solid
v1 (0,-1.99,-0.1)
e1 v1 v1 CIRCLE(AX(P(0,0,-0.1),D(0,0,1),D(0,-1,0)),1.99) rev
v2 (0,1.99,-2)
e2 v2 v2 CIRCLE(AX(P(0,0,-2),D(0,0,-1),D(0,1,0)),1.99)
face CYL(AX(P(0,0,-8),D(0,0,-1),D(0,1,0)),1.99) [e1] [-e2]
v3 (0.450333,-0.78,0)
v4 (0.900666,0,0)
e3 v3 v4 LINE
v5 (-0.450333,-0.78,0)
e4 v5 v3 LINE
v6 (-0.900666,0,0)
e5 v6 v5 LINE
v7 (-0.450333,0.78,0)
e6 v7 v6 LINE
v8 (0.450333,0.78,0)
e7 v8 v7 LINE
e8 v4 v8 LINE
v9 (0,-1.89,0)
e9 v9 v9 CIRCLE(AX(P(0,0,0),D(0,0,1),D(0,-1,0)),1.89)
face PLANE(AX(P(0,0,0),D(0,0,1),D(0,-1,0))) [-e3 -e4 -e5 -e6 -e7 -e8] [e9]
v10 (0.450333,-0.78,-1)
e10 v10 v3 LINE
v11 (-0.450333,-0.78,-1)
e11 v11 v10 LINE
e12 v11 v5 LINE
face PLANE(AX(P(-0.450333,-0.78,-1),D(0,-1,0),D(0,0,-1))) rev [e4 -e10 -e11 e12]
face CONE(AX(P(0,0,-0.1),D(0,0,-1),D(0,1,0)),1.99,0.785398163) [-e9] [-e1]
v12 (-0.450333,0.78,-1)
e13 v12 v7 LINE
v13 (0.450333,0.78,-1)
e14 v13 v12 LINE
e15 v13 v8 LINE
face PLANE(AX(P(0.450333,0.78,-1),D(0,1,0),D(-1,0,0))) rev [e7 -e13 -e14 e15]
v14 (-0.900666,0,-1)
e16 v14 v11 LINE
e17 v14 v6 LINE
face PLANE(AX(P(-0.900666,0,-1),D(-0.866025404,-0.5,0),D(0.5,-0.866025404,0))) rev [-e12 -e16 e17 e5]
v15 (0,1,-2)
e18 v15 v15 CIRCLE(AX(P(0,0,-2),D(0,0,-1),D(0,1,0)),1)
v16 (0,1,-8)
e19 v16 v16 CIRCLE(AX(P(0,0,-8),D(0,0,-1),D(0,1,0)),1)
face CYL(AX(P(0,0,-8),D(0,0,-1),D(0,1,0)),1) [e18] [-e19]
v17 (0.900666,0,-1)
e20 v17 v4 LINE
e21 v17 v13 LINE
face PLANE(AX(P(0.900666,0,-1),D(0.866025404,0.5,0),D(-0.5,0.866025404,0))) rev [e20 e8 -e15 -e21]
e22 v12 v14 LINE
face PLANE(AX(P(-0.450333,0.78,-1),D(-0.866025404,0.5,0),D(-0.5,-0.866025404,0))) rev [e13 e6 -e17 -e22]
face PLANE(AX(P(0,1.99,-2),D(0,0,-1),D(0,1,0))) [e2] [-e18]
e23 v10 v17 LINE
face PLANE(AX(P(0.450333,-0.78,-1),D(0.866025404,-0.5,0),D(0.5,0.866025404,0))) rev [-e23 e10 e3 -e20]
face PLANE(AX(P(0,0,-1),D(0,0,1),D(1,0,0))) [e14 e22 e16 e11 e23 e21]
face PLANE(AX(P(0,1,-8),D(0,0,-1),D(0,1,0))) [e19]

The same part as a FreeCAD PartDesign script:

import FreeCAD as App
import Part
import Sketcher
from FreeCAD import Vector
Q = App.Units.Quantity


def edges_at(feature, points):
    """Names of the edges that pass closest to the given points."""
    edges = feature.Shape.Edges
    near = lambda p: min(range(len(edges)), key=lambda i: edges[i].distToShape(Part.Vertex(*p))[0])
    return sorted({f"Edge{near(p) + 1}" for p in points})

doc = App.newDocument("Part")
body = doc.addObject("PartDesign::Body", "Body")

# Sketch on YZ plane
sketch1 = doc.addObject("Sketcher::SketchObject", "Sketch")
body.addObject(sketch1)
sketch1.AttachmentSupport = (doc.YZ_Plane, [""])
sketch1.MapMode = "FlatFace"
sketch1.addGeometry(Part.LineSegment(Vector(1.99, 0, 0), Vector(0, 0, 0)), False)
sketch1.addGeometry(Part.LineSegment(Vector(0, 0, 0), Vector(0, -8, 0)), False)
sketch1.addGeometry(Part.LineSegment(Vector(0, -8, 0), Vector(1, -8, 0)), False)
sketch1.addGeometry(Part.LineSegment(Vector(1, -8, 0), Vector(1, -2, 0)), False)
sketch1.addGeometry(Part.LineSegment(Vector(1, -2, 0), Vector(1.99, -2, 0)), False)
sketch1.addGeometry(Part.LineSegment(Vector(1.99, -2, 0), Vector(1.99, 0, 0)), False)
sketch1.addConstraint(Sketcher.Constraint("Coincident", 0, 2, 1, 1))
sketch1.addConstraint(Sketcher.Constraint("Coincident", 1, 2, 2, 1))
sketch1.addConstraint(Sketcher.Constraint("Coincident", 2, 2, 3, 1))
sketch1.addConstraint(Sketcher.Constraint("Coincident", 3, 2, 4, 1))
sketch1.addConstraint(Sketcher.Constraint("Coincident", 4, 2, 5, 1))
sketch1.addConstraint(Sketcher.Constraint("Coincident", 5, 2, 0, 1))
sketch1.addConstraint(Sketcher.Constraint("Horizontal", 0))
sketch1.addConstraint(Sketcher.Constraint("Vertical", 1))
sketch1.addConstraint(Sketcher.Constraint("Horizontal", 2))
sketch1.addConstraint(Sketcher.Constraint("Vertical", 3))
sketch1.addConstraint(Sketcher.Constraint("Horizontal", 4))
sketch1.addConstraint(Sketcher.Constraint("Vertical", 5))
sketch1.addConstraint(Sketcher.Constraint("Coincident", 0, 2, -1, 1))
sketch1.addConstraint(Sketcher.Constraint("DistanceX", 2, 1, 2, 2, 1.0))
sketch1.addConstraint(Sketcher.Constraint("DistanceY", 1, 2, 1, 1, 8.0))
sketch1.addConstraint(Sketcher.Constraint("DistanceY", 3, 1, 3, 2, 6.0))
sketch1.addConstraint(Sketcher.Constraint("DistanceX", 0, 2, 0, 1, 1.99))
revolution = doc.addObject("PartDesign::Revolution", "Revolution")
body.addObject(revolution)
revolution.Profile = sketch1
revolution.ReferenceAxis = (sketch1, ["V_Axis"])
revolution.Angle = 360

# Sketch on XY plane
sketch2 = doc.addObject("Sketcher::SketchObject", "Sketch001")
body.addObject(sketch2)
sketch2.AttachmentSupport = (doc.XY_Plane, [""])
sketch2.MapMode = "FlatFace"
sketch2.addGeometry(Part.LineSegment(Vector(0.450333, 0.78, 0), Vector(-0.450333, 0.78, 0)), False)
sketch2.addGeometry(Part.LineSegment(Vector(-0.450333, 0.78, 0), Vector(-0.900666, 0, 0)), False)
sketch2.addGeometry(Part.LineSegment(Vector(-0.900666, 0, 0), Vector(-0.450333, -0.78, 0)), False)
sketch2.addGeometry(Part.LineSegment(Vector(-0.450333, -0.78, 0), Vector(0.450333, -0.78, 0)), False)
sketch2.addGeometry(Part.LineSegment(Vector(0.450333, -0.78, 0), Vector(0.900666, 0, 0)), False)
sketch2.addGeometry(Part.LineSegment(Vector(0.900666, 0, 0), Vector(0.450333, 0.78, 0)), False)
sketch2.addConstraint(Sketcher.Constraint("Coincident", 0, 2, 1, 1))
sketch2.addConstraint(Sketcher.Constraint("Coincident", 1, 2, 2, 1))
sketch2.addConstraint(Sketcher.Constraint("Coincident", 2, 2, 3, 1))
sketch2.addConstraint(Sketcher.Constraint("Coincident", 3, 2, 4, 1))
sketch2.addConstraint(Sketcher.Constraint("Coincident", 4, 2, 5, 1))
sketch2.addConstraint(Sketcher.Constraint("Coincident", 5, 2, 0, 1))
sketch2.addConstraint(Sketcher.Constraint("Horizontal", 0))
sketch2.addConstraint(Sketcher.Constraint("Horizontal", 3))
sketch2.addConstraint(Sketcher.Constraint("Symmetric", 0, 2, 3, 2, -1, 1))
sketch2.addConstraint(Sketcher.Constraint("Symmetric", 1, 2, 4, 2, -1, 1))
sketch2.addConstraint(Sketcher.Constraint("PointOnObject", 1, 2, -1))
sketch2.addConstraint(Sketcher.Constraint("Parallel", 2, 5))
sketch2.addConstraint(Sketcher.Constraint("Vertical", 0, 2, 2, 2))
sketch2.addConstraint(Sketcher.Constraint("Angle", 1, Q("-120 deg")))
sketch2.addConstraint(Sketcher.Constraint("DistanceY", -1, 1, 0, 2, 0.78))
sketch2.addConstraint(Sketcher.Constraint("DistanceX", 1, 2, 3, 2, 1.351))
pocket1 = doc.addObject("PartDesign::Pocket", "Pocket")
body.addObject(pocket1)
pocket1.Profile = sketch2
pocket1.Length = 1
doc.recompute()

chamfer = doc.addObject("PartDesign::Chamfer", "Chamfer")
body.addObject(chamfer)
chamfer.Base = (pocket1, edges_at(pocket1, [(0, -1.99, 0)]))
chamfer.Size = 0.1

doc.recompute()
